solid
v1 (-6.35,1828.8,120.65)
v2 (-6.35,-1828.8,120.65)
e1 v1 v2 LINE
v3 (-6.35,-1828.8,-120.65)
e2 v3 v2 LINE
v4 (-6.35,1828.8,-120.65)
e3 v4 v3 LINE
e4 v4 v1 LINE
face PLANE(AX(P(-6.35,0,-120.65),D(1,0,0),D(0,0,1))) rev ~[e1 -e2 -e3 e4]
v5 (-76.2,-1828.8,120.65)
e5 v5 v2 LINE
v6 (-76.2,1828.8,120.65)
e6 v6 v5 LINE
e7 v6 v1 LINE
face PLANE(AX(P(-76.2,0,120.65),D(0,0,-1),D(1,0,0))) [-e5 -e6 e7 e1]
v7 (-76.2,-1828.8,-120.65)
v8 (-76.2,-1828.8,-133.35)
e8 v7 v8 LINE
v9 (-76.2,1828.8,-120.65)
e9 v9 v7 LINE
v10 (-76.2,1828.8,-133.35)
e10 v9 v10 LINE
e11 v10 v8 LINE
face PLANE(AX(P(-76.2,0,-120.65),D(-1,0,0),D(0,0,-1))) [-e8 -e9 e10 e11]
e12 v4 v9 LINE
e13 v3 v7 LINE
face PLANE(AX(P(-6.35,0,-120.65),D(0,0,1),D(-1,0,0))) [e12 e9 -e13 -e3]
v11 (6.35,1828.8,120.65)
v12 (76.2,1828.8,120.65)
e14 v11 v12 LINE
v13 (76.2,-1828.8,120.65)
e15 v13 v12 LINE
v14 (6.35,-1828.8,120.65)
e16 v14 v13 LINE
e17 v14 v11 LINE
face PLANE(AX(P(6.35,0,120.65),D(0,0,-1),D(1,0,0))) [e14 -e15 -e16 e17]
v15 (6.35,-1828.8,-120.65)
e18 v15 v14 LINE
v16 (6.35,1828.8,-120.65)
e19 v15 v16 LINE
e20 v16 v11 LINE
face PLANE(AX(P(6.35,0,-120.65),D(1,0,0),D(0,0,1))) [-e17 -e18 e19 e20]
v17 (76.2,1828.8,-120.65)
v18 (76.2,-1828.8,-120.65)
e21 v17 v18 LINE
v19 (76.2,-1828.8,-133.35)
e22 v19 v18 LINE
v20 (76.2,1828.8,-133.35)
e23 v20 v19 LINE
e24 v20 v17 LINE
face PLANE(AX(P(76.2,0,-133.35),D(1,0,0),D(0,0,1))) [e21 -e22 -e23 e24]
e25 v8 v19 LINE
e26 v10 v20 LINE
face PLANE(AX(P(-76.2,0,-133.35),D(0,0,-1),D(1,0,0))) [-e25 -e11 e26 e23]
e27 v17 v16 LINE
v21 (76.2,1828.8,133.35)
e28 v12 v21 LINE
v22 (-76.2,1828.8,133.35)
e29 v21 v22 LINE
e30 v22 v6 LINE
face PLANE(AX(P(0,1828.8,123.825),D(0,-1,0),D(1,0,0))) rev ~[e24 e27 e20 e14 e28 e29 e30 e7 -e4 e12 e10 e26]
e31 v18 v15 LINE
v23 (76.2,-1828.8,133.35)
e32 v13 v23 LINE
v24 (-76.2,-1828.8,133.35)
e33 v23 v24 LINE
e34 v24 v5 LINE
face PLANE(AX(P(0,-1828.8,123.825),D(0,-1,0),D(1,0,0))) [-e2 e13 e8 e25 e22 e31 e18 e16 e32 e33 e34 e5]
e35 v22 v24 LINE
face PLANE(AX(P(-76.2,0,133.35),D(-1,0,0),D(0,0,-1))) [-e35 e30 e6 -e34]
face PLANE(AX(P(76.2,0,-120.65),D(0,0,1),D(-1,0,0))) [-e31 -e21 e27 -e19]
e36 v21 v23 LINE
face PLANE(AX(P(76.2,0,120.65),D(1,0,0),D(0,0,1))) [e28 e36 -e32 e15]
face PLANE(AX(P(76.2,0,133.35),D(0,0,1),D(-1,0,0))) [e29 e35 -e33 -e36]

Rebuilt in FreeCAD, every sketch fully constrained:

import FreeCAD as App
import Part
import Sketcher
from FreeCAD import Vector
Q = App.Units.Quantity


def add_polygon(sketch, points):
    """Adds a closed chain of lines whose ends are joined by coincident constraints."""
    first, n = sketch.GeometryCount, len(points)
    for a, b in zip(points, points[1:] + points[:1]):
        sketch.addGeometry(Part.LineSegment(App.Vector(*a, 0), App.Vector(*b, 0)), False)
    for i in range(n):
        sketch.addConstraint(Sketcher.Constraint("Coincident", first + i, 2, first + (i + 1) % n, 1))

doc = App.newDocument("Part")
body = doc.addObject("PartDesign::Body", "Body")

# Sketch on XZ plane
sketch1 = body.newObject("Sketcher::SketchObject", "Sketch")
sketch1.AttachmentSupport = (doc.getObject("XZ_Plane"), [""])
sketch1.MapMode = "FlatFace"
add_polygon(sketch1, [(76, 121), (76, 133), (-76, 133), (-76, 121), (-6, 121), (-6, -121), (-76, -121), (-76, -133), (76, -133), (76, -121), (6, -121), (6, 121)])  # lines 0-11
sketch1.addConstraint(Sketcher.Constraint("Vertical", 0))
sketch1.addConstraint(Sketcher.Constraint("Horizontal", 1))
sketch1.addConstraint(Sketcher.Constraint("Vertical", 2))
sketch1.addConstraint(Sketcher.Constraint("Horizontal", 3))
sketch1.addConstraint(Sketcher.Constraint("Vertical", 4))
sketch1.addConstraint(Sketcher.Constraint("Horizontal", 5))
sketch1.addConstraint(Sketcher.Constraint("Vertical", 6))
sketch1.addConstraint(Sketcher.Constraint("Horizontal", 7))
sketch1.addConstraint(Sketcher.Constraint("Vertical", 8))
sketch1.addConstraint(Sketcher.Constraint("Horizontal", 9))
sketch1.addConstraint(Sketcher.Constraint("Vertical", 10))
sketch1.addConstraint(Sketcher.Constraint("Horizontal", 11))
sketch1.addConstraint(Sketcher.Constraint("Symmetric", 0, 2, 6, 2, -1, 1))
sketch1.addConstraint(Sketcher.Constraint("Symmetric", 2, 2, 8, 2, -1, 1))
sketch1.addConstraint(Sketcher.Constraint("Symmetric", 4, 2, 10, 2, -1, 1))
sketch1.addConstraint(Sketcher.Constraint("Symmetric", 5, 2, 8, 2, -2))
sketch1.addConstraint(Sketcher.Constraint("DistanceX", 1, 2, 1, 1, Q("6 in")))
sketch1.addConstraint(Sketcher.Constraint("DistanceY", 0, 1, 0, 2, Q("0.5 in")))
sketch1.addConstraint(Sketcher.Constraint("DistanceY", 4, 2, 4, 1, Q("9.5 in")))
sketch1.addConstraint(Sketcher.Constraint("DistanceX", 3, 1, 3, 2, Q("2.75 in")))
pad1 = body.newObject("PartDesign::Pad", "Pad")
pad1.Profile = sketch1
pad1.Length = Q("144 in")
pad1.Midplane = True

doc.recompute()
